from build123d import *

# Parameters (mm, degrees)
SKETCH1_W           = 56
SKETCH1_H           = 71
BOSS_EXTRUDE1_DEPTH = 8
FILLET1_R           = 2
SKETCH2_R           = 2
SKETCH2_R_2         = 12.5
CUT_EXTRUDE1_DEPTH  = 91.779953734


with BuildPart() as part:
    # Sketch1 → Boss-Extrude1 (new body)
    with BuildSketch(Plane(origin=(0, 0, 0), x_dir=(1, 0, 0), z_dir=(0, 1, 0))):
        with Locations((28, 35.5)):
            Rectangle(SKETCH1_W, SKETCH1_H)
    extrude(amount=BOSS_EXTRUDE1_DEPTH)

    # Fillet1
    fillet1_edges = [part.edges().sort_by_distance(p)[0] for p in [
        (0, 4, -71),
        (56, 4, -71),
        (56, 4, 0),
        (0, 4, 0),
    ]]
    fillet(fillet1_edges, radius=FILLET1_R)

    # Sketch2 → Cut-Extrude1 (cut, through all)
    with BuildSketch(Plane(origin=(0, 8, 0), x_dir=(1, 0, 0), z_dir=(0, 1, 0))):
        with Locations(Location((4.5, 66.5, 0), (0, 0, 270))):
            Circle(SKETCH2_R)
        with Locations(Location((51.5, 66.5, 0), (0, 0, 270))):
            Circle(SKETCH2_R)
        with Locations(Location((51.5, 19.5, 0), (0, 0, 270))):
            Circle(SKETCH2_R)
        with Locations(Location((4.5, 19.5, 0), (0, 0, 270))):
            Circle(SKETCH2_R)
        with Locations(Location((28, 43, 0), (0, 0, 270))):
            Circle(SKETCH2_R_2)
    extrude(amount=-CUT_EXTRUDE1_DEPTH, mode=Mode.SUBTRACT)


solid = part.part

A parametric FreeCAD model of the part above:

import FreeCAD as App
import Part
import Sketcher

V = App.Vector
Q = App.Units.Quantity


def edges_at(feature, points):
    """Names of the edges that pass closest to the given points."""
    edges = feature.Shape.Edges
    near = lambda p: min(range(len(edges)), key=lambda i: edges[i].distToShape(Part.Vertex(*p))[0])
    return sorted({f"Edge{near(p) + 1}" for p in points})


def add_polygon(sketch, points):
    """Adds a closed chain of lines whose ends are joined by coincident constraints."""
    first, n = sketch.GeometryCount, len(points)
    for a, b in zip(points, points[1:] + points[:1]):
        sketch.addGeometry(Part.LineSegment(App.Vector(*a, 0), App.Vector(*b, 0)), False)
    for i in range(n):
        sketch.addConstraint(Sketcher.Constraint("Coincident", first + i, 2, first + (i + 1) % n, 1))

doc = App.newDocument("Part")
body = doc.addObject("PartDesign::Body", "Body")

# Sketch on XZ plane
sketch1 = body.newObject("Sketcher::SketchObject", "Sketch")
sketch1.AttachmentSupport = (doc.getObject("XZ_Plane"), [""])
sketch1.MapMode = "FlatFace"
add_polygon(sketch1, [(0, -71), (0, 0), (56, 0), (56, -71)])  # lines 0-3
sketch1.addConstraint([
    Sketcher.Constraint("Vertical", 0),
    Sketcher.Constraint("Horizontal", 1),
    Sketcher.Constraint("Vertical", 2),
    Sketcher.Constraint("Horizontal", 3),
    Sketcher.Constraint("Coincident", 0, 2, -1, 1),
    Sketcher.Constraint("DistanceX", 1, 1, 1, 2, Q("56 mm")),
    Sketcher.Constraint("DistanceY", 0, 1, 0, 2, Q("71 mm")),
])
pad1 = body.newObject("PartDesign::Pad", "Pad")
pad1.Profile = sketch1
pad1.Length = 8
pad1.Reversed = True
doc.recompute()

fillet = body.newObject("PartDesign::Fillet", "Fillet")
fillet.Base = (pad1, edges_at(pad1, [
    (0, 4, -71),
    (56, 4, -71),
    (56, 4, 0),
    (0, 4, 0),
]))
fillet.Radius = 2

# Sketch on XZ plane
sketch2 = body.newObject("Sketcher::SketchObject", "Sketch001")
sketch2.AttachmentSupport = (doc.getObject("XZ_Plane"), [""])
sketch2.MapMode = "FlatFace"
sketch2.AttachmentOffset = App.Placement(V(0, 0, -8), App.Rotation())
sketch2.addGeometry([
    Part.Circle(V(4.5, -66.5, 0), V(0, 0, 1), 2),  # 0
    Part.Circle(V(51.5, -66.5, 0), V(0, 0, 1), 2),  # 1
    Part.Circle(V(51.5, -19.5, 0), V(0, 0, 1), 2),  # 2
    Part.Circle(V(4.5, -19.5, 0), V(0, 0, 1), 2),  # 3
    Part.Circle(V(28, -43, 0), V(0, 0, 1), 12.5),  # 4
], False)
sketch2.addConstraint([
    Sketcher.Constraint("Equal", 0, 1),
    Sketcher.Constraint("Equal", 1, 2),
    Sketcher.Constraint("Equal", 2, 3),
    Sketcher.Constraint("Horizontal", 0, 3, 1, 3),
    Sketcher.Constraint("Horizontal", 2, 3, 3, 3),
    Sketcher.Constraint("Vertical", 1, 3, 2, 3),
    Sketcher.Constraint("Vertical", 0, 3, 3, 3),
    Sketcher.Constraint("Diameter", 0, Q("4 mm")),
    Sketcher.Constraint("Diameter", 4, Q("25 mm")),
    Sketcher.Constraint("DistanceX", -1, 1, 4, 3, Q("28 mm")),
    Sketcher.Constraint("DistanceY", 4, 3, -1, 1, Q("43 mm")),
    Sketcher.Constraint("DistanceX", 0, 3, 1, 3, Q("47 mm")),
    Sketcher.Constraint("DistanceY", 1, 3, 2, 3, Q("47 mm")),
    Sketcher.Constraint("DistanceX", -1, 1, 0, 3, Q("4.5 mm")),
    Sketcher.Constraint("DistanceY", 0, 3, -1, 1, Q("66.5 mm")),
])
pocket1 = body.newObject("PartDesign::Pocket", "Pocket")
pocket1.Profile = sketch2
pocket1.Type = "ThroughAll"
pocket1.Reversed = True

doc.recompute()
